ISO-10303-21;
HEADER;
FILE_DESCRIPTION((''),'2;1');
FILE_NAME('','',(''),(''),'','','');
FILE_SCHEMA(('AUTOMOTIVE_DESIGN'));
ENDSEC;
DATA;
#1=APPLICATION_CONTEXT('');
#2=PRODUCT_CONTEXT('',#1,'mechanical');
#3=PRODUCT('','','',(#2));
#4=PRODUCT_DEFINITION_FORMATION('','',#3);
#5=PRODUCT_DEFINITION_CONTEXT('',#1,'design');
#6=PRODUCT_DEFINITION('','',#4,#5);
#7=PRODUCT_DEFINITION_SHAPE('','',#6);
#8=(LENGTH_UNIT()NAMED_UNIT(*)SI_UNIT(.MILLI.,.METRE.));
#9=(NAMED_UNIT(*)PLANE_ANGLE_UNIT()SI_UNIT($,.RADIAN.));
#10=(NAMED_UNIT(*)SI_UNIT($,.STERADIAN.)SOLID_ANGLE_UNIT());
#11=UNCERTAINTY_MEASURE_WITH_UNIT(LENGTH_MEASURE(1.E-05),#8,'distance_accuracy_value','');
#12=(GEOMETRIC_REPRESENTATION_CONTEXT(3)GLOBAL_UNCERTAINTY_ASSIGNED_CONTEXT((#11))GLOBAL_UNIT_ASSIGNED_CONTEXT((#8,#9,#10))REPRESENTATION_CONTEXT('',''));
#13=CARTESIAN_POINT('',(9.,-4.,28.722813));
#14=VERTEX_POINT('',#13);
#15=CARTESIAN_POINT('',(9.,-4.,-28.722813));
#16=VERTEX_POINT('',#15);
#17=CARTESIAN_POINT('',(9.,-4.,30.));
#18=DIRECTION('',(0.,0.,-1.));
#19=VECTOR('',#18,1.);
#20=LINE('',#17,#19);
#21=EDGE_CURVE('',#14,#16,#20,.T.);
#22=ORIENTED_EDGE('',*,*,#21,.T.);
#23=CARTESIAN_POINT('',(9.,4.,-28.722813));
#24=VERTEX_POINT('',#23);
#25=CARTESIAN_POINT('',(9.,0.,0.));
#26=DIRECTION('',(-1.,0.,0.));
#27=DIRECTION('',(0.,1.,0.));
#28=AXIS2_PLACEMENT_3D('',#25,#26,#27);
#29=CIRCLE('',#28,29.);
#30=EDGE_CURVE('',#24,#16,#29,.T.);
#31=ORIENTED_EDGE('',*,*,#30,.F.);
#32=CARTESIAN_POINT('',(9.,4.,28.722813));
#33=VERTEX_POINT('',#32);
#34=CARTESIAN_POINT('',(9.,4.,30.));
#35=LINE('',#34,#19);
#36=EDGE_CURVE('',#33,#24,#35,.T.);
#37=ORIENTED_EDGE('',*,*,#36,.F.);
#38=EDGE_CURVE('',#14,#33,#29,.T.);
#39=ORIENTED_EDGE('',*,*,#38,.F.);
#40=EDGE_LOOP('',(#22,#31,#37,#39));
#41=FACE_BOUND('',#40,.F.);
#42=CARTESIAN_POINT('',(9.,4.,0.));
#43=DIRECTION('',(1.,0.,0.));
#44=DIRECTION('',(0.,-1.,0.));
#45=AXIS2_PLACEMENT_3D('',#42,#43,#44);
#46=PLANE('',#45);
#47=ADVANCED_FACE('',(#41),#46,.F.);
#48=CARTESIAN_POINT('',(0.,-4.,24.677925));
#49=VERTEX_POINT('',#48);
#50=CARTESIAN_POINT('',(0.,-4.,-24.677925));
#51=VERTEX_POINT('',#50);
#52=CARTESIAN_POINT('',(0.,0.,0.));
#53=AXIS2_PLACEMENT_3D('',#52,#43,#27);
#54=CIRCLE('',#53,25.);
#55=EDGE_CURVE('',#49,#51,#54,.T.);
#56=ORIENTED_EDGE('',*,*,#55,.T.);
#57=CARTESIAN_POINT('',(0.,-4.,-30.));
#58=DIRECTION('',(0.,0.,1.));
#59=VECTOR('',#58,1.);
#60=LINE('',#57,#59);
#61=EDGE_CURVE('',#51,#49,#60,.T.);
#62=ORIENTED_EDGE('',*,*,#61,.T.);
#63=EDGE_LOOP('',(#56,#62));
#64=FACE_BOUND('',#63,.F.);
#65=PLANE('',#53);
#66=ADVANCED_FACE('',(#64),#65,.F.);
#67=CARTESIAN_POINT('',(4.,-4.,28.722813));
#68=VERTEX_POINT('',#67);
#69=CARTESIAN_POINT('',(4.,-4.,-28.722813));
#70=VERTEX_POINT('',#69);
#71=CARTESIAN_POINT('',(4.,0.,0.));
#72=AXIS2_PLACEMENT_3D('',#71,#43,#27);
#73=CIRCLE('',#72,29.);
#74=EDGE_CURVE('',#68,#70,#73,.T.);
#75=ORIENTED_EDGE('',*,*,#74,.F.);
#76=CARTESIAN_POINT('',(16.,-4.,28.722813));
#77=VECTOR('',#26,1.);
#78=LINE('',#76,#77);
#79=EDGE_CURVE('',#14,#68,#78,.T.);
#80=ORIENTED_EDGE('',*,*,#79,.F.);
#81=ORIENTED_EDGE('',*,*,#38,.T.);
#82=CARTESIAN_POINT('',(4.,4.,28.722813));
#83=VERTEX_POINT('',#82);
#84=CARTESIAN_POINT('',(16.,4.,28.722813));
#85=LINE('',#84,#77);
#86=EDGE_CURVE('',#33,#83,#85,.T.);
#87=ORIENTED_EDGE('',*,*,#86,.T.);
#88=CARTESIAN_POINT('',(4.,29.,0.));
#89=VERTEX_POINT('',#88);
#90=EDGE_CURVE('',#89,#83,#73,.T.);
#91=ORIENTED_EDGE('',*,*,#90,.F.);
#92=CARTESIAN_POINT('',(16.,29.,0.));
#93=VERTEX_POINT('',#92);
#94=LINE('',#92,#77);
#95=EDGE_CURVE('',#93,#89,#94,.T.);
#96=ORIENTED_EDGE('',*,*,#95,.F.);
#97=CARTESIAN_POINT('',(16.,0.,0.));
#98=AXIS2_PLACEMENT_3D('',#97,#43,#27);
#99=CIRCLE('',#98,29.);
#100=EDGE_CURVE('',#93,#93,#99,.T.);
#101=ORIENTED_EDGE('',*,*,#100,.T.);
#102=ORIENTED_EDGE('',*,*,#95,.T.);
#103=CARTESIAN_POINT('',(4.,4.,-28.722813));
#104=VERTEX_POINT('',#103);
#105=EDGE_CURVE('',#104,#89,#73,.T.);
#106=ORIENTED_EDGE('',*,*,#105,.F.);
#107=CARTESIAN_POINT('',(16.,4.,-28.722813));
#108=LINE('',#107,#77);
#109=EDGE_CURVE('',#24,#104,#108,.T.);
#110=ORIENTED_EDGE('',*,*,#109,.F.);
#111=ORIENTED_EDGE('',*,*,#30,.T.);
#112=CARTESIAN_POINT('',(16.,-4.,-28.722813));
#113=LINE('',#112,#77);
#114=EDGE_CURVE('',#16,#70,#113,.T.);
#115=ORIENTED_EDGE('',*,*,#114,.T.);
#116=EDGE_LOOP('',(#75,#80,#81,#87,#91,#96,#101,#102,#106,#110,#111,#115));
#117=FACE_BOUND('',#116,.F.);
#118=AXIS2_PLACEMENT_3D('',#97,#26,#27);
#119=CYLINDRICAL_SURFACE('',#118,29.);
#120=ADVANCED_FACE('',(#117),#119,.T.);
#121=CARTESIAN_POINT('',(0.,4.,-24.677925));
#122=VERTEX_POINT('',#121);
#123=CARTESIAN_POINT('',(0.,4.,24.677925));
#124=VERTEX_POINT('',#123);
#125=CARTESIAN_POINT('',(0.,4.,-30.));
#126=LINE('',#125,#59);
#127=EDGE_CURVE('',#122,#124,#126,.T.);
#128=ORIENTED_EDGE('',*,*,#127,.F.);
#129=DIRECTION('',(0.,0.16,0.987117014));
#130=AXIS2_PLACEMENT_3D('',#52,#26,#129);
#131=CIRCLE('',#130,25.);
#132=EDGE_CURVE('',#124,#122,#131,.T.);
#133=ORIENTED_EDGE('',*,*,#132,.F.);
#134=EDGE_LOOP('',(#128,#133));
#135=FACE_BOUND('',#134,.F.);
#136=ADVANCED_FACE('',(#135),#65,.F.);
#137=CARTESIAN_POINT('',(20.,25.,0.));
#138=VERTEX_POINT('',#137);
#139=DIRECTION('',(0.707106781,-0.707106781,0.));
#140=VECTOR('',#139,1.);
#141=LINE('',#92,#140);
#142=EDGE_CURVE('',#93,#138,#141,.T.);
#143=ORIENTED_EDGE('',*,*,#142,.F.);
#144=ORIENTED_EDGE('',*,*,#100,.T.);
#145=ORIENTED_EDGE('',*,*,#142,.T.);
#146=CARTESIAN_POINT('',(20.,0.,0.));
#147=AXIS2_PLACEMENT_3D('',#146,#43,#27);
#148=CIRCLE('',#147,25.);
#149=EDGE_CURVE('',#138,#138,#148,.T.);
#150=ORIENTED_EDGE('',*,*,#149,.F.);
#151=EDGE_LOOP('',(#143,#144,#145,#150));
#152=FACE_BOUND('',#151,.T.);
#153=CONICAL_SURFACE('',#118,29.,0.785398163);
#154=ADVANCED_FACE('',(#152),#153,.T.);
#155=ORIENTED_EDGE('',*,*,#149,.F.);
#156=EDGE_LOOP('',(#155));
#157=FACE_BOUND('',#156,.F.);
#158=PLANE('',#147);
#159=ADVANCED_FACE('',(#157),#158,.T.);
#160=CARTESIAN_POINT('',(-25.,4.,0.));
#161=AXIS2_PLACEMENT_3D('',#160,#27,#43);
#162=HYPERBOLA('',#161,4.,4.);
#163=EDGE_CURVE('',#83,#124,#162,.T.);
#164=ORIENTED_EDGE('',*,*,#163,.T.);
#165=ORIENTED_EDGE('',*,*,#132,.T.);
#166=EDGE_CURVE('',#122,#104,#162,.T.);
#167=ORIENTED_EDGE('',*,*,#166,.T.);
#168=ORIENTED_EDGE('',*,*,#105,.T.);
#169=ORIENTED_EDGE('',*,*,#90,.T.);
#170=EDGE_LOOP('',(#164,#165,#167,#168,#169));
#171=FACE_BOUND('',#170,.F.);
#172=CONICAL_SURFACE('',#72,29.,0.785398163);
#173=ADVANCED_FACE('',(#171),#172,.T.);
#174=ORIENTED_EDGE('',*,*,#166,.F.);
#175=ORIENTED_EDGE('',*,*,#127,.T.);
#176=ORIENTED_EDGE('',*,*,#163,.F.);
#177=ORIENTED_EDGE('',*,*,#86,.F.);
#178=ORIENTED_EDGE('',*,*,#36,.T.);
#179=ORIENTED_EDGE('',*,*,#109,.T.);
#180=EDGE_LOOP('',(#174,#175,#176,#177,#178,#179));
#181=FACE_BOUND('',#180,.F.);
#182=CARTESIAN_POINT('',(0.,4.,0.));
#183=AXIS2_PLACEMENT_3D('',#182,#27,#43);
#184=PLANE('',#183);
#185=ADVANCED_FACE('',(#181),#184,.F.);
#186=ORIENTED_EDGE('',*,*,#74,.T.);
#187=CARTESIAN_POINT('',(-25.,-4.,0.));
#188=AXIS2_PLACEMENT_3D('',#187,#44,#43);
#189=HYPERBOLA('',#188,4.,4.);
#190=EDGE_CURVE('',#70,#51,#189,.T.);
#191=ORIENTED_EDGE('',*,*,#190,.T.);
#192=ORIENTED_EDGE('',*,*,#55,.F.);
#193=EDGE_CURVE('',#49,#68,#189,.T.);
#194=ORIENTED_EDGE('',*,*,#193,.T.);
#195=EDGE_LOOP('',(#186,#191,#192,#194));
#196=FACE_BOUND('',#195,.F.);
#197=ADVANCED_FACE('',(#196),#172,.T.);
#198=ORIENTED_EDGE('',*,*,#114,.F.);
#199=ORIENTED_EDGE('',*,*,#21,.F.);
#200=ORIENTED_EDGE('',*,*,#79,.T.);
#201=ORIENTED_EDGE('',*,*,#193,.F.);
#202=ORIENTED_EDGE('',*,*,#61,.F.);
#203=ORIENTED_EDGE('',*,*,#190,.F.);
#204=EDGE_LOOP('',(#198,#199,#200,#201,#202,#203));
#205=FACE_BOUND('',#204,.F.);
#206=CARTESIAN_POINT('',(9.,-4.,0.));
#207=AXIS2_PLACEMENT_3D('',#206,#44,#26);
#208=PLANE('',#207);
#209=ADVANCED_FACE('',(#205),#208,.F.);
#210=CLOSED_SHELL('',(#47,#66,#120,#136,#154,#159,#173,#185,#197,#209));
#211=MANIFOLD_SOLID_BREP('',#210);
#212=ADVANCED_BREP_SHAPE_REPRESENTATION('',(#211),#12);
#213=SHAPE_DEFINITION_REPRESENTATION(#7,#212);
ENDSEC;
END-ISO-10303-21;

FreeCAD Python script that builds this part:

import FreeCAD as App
import Part
import Sketcher

V = App.Vector

doc = App.newDocument("Part")
body = doc.addObject("PartDesign::Body", "Body")

sketch1 = doc.addObject("Sketcher::SketchObject", "Sketch")
body.addObject(sketch1)
sketch1.AttachmentSupport = (doc.XY_Plane, [""])
sketch1.MapMode = "FlatFace"
sketch1.addGeometry([
    Part.LineSegment(V(0, 25, 0), V(0, 0, 0)),
    Part.LineSegment(V(0, 0, 0), V(20, 0, 0)),
    Part.LineSegment(V(20, 0, 0), V(20, 25, 0)),
    Part.LineSegment(V(20, 25, 0), V(16, 29, 0)),
    Part.LineSegment(V(16, 29, 0), V(4, 29, 0)),
    Part.LineSegment(V(4, 29, 0), V(0, 25, 0)),
], False)
sketch1.addConstraint([
    Sketcher.Constraint("Coincident", 0, 2, 1, 1),
    Sketcher.Constraint("Coincident", 1, 2, 2, 1),
    Sketcher.Constraint("Coincident", 2, 2, 3, 1),
    Sketcher.Constraint("Coincident", 3, 2, 4, 1),
    Sketcher.Constraint("Coincident", 4, 2, 5, 1),
    Sketcher.Constraint("Coincident", 5, 2, 0, 1),
    Sketcher.Constraint("Vertical", 0),
    Sketcher.Constraint("Horizontal", 1),
    Sketcher.Constraint("Vertical", 2),
    Sketcher.Constraint("Horizontal", 4),
    Sketcher.Constraint("Coincident", 0, 2, -1, 1),
    Sketcher.Constraint("Perpendicular", 3, 5),
    Sketcher.Constraint("Horizontal", 2, 2, 5, 2),
    Sketcher.Constraint("Equal", 3, 5),
    Sketcher.Constraint("DistanceX", 1, 1, 1, 2, 20.0),
    Sketcher.Constraint("DistanceY", -1, 1, 3, 2, 29.0),
    Sketcher.Constraint("DistanceX", -1, 1, 4, 2, 4.0),
])
revolution = doc.addObject("PartDesign::Revolution", "Revolution")
body.addObject(revolution)
revolution.Profile = sketch1
revolution.ReferenceAxis = (sketch1, ["H_Axis"])
revolution.Angle = 360

sketch2 = doc.addObject("Sketcher::SketchObject", "Sketch001")
body.addObject(sketch2)
sketch2.AttachmentSupport = (doc.XY_Plane, [""])
sketch2.MapMode = "FlatFace"
sketch2.addGeometry([
    Part.LineSegment(V(9, 4, 0), V(0, 4, 0)),
    Part.LineSegment(V(0, 4, 0), V(0, -4, 0)),
    Part.LineSegment(V(0, -4, 0), V(9, -4, 0)),
    Part.LineSegment(V(9, -4, 0), V(9, 4, 0)),
], False)
sketch2.addConstraint([
    Sketcher.Constraint("Coincident", 0, 2, 1, 1),
    Sketcher.Constraint("Coincident", 1, 2, 2, 1),
    Sketcher.Constraint("Coincident", 2, 2, 3, 1),
    Sketcher.Constraint("Coincident", 3, 2, 0, 1),
    Sketcher.Constraint("Horizontal", 0),
    Sketcher.Constraint("Vertical", 1),
    Sketcher.Constraint("Horizontal", 2),
    Sketcher.Constraint("Vertical", 3),
    Sketcher.Constraint("Symmetric", 0, 2, 1, 2, -1, 1),
    Sketcher.Constraint("DistanceX", 0, 2, 0, 1, 9.0),
    Sketcher.Constraint("DistanceY", 1, 2, 1, 1, 8.0),
])
pocket1 = doc.addObject("PartDesign::Pocket", "Pocket")
body.addObject(pocket1)
pocket1.Profile = sketch2
pocket1.Type = "ThroughAll"
pocket1.Midplane = True

doc.recompute()
